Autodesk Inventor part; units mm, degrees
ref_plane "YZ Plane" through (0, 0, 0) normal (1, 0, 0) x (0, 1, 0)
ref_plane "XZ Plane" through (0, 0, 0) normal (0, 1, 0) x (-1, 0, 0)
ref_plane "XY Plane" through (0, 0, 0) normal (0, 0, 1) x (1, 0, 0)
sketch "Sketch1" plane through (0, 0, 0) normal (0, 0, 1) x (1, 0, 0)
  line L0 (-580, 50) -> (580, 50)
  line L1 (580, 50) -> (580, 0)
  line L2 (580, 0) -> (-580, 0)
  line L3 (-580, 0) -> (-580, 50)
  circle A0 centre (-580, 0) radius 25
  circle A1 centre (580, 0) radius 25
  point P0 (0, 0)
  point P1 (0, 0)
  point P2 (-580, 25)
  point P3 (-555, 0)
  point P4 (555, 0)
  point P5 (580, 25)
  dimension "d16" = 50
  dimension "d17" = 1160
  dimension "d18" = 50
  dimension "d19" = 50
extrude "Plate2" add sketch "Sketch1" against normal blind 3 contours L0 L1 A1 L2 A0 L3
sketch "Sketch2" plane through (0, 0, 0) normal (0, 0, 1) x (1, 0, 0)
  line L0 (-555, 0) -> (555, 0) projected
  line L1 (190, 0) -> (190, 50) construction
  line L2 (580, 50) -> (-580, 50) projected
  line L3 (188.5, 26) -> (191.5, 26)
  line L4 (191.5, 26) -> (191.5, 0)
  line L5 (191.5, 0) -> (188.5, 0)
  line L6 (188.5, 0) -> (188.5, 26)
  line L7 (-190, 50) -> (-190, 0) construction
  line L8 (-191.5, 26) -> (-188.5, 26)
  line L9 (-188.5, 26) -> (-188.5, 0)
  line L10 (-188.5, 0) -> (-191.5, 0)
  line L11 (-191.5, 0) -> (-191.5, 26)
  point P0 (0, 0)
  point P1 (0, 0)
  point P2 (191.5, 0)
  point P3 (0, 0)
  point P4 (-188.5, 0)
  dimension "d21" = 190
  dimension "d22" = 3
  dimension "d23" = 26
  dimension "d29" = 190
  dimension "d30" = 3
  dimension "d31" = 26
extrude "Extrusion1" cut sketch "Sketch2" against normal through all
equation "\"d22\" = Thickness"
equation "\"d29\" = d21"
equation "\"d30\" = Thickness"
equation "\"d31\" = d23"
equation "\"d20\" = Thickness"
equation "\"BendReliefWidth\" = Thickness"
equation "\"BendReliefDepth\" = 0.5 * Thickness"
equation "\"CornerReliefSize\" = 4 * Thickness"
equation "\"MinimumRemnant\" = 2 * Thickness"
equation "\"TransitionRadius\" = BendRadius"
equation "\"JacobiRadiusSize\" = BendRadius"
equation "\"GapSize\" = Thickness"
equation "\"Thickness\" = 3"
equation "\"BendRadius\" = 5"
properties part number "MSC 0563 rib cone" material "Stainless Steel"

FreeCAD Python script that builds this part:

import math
import FreeCAD as App
import Part
import Sketcher
Q = App.Units.Quantity


def add_polygon(sketch, points):
    """Adds a closed chain of lines whose ends are joined by coincident constraints."""
    first, n = sketch.GeometryCount, len(points)
    for a, b in zip(points, points[1:] + points[:1]):
        sketch.addGeometry(Part.LineSegment(App.Vector(*a, 0), App.Vector(*b, 0)), False)
    for i in range(n):
        sketch.addConstraint(Sketcher.Constraint("Coincident", first + i, 2, first + (i + 1) % n, 1))

doc = App.newDocument("Part")
params = doc.addObject("Spreadsheet::Sheet", "Params")
for row, (alias, value) in enumerate([
    ("sketch1_radius", "25 mm"),
    ("sketch1_width", "1160 mm"),
    ("pad1_length", "3 mm"),
    ("sketch2_width", "3 mm"),
    ("sketch2_height", "26 mm"),
], start=1):
    params.set(f"A{row}", alias)
    params.set(f"B{row}", "=" + value)
    params.setAlias(f"B{row}", alias)

body = doc.addObject("PartDesign::Body", "Body")

# Sketch on XY plane
sketch1 = body.newObject("Sketcher::SketchObject", "Sketch")
sketch1.AttachmentSupport = (doc.getObject("XY_Plane"), [""])
sketch1.MapMode = "FlatFace"
sketch1.addGeometry([
    Part.LineSegment(App.Vector(580, 50, 0), App.Vector(-580, 50, 0)),  # 0
    Part.LineSegment(App.Vector(-580, 50, 0), App.Vector(-580, 25, 0)),  # 1
    Part.ArcOfCircle(Part.Circle(App.Vector(-580, 0, 0), App.Vector(0, 0, 1), 25), math.radians(0), math.radians(90)),  # 2
    Part.LineSegment(App.Vector(-555, 0, 0), App.Vector(555, 0, 0)),  # 3
    Part.ArcOfCircle(Part.Circle(App.Vector(580, 0, 0), App.Vector(0, 0, 1), 25), math.radians(90), math.radians(180)),  # 4
    Part.LineSegment(App.Vector(580, 25, 0), App.Vector(580, 50, 0)),  # 5
], False)
sketch1.addConstraint([
    Sketcher.Constraint("Coincident", 0, 2, 1, 1),
    Sketcher.Constraint("Coincident", 1, 2, 2, 2),
    Sketcher.Constraint("Coincident", 2, 1, 3, 1),
    Sketcher.Constraint("Coincident", 3, 2, 4, 2),
    Sketcher.Constraint("Coincident", 4, 1, 5, 1),
    Sketcher.Constraint("Coincident", 5, 2, 0, 1),
    Sketcher.Constraint("Horizontal", 0),
    Sketcher.Constraint("Vertical", 1),
    Sketcher.Constraint("Horizontal", 3),
    Sketcher.Constraint("Vertical", 5),
    Sketcher.Constraint("Equal", 2, 4),
    Sketcher.Constraint("Symmetric", 2, 3, 4, 3, -1, 1),
    Sketcher.Constraint("Symmetric", 1, 2, 4, 1, -2),
    Sketcher.Constraint("PointOnObject", 2, 1, -1),
    Sketcher.Constraint("Vertical", 2, 3, 0, 2),
    Sketcher.Constraint("Radius", 2, Q("25 mm")),
    Sketcher.Constraint("DistanceX", 0, 2, 0, 1, Q("1160 mm")),
    Sketcher.Constraint("DistanceY", -1, 1, 0, 2, Q("50 mm")),
])
sketch1.setExpression("Constraints[15]", "Params.sketch1_radius")
sketch1.setExpression("Constraints[16]", "Params.sketch1_width")
pad1 = body.newObject("PartDesign::Pad", "Pad")
pad1.Profile = sketch1
pad1.setExpression("Length", "Params.pad1_length")
pad1.Reversed = True

# Sketch on XY plane
sketch2 = body.newObject("Sketcher::SketchObject", "Sketch001")
sketch2.AttachmentSupport = (doc.getObject("XY_Plane"), [""])
sketch2.MapMode = "FlatFace"
add_polygon(sketch2, [(-191.5, 26), (-191.5, 0), (-188.5, 0), (-188.5, 26)])  # lines 0-3
add_polygon(sketch2, [(188.5, 26), (188.5, 0), (191.5, 0), (191.5, 26)])  # lines 4-7
sketch2.addConstraint([
    Sketcher.Constraint("Vertical", 0),
    Sketcher.Constraint("Horizontal", 1),
    Sketcher.Constraint("Vertical", 2),
    Sketcher.Constraint("Horizontal", 3),
    Sketcher.Constraint("Vertical", 4),
    Sketcher.Constraint("Horizontal", 5),
    Sketcher.Constraint("Vertical", 6),
    Sketcher.Constraint("Horizontal", 7),
    Sketcher.Constraint("Symmetric", 1, 2, 4, 2, -1, 1),
    Sketcher.Constraint("Symmetric", 0, 2, 5, 2, -2),
    Sketcher.Constraint("Horizontal", 3, 2, 6, 2),
    Sketcher.Constraint("DistanceX", 1, 1, 1, 2, Q("3 mm")),
    Sketcher.Constraint("DistanceY", 0, 2, 0, 1, Q("26 mm")),
    Sketcher.Constraint("DistanceX", 1, 2, 4, 2, Q("377 mm")),
])
sketch2.setExpression("Constraints[19]", "Params.sketch2_width")
sketch2.setExpression("Constraints[20]", "Params.sketch2_height")
pocket1 = body.newObject("PartDesign::Pocket", "Pocket")
pocket1.Profile = sketch2
pocket1.Type = "ThroughAll"

doc.recompute()
